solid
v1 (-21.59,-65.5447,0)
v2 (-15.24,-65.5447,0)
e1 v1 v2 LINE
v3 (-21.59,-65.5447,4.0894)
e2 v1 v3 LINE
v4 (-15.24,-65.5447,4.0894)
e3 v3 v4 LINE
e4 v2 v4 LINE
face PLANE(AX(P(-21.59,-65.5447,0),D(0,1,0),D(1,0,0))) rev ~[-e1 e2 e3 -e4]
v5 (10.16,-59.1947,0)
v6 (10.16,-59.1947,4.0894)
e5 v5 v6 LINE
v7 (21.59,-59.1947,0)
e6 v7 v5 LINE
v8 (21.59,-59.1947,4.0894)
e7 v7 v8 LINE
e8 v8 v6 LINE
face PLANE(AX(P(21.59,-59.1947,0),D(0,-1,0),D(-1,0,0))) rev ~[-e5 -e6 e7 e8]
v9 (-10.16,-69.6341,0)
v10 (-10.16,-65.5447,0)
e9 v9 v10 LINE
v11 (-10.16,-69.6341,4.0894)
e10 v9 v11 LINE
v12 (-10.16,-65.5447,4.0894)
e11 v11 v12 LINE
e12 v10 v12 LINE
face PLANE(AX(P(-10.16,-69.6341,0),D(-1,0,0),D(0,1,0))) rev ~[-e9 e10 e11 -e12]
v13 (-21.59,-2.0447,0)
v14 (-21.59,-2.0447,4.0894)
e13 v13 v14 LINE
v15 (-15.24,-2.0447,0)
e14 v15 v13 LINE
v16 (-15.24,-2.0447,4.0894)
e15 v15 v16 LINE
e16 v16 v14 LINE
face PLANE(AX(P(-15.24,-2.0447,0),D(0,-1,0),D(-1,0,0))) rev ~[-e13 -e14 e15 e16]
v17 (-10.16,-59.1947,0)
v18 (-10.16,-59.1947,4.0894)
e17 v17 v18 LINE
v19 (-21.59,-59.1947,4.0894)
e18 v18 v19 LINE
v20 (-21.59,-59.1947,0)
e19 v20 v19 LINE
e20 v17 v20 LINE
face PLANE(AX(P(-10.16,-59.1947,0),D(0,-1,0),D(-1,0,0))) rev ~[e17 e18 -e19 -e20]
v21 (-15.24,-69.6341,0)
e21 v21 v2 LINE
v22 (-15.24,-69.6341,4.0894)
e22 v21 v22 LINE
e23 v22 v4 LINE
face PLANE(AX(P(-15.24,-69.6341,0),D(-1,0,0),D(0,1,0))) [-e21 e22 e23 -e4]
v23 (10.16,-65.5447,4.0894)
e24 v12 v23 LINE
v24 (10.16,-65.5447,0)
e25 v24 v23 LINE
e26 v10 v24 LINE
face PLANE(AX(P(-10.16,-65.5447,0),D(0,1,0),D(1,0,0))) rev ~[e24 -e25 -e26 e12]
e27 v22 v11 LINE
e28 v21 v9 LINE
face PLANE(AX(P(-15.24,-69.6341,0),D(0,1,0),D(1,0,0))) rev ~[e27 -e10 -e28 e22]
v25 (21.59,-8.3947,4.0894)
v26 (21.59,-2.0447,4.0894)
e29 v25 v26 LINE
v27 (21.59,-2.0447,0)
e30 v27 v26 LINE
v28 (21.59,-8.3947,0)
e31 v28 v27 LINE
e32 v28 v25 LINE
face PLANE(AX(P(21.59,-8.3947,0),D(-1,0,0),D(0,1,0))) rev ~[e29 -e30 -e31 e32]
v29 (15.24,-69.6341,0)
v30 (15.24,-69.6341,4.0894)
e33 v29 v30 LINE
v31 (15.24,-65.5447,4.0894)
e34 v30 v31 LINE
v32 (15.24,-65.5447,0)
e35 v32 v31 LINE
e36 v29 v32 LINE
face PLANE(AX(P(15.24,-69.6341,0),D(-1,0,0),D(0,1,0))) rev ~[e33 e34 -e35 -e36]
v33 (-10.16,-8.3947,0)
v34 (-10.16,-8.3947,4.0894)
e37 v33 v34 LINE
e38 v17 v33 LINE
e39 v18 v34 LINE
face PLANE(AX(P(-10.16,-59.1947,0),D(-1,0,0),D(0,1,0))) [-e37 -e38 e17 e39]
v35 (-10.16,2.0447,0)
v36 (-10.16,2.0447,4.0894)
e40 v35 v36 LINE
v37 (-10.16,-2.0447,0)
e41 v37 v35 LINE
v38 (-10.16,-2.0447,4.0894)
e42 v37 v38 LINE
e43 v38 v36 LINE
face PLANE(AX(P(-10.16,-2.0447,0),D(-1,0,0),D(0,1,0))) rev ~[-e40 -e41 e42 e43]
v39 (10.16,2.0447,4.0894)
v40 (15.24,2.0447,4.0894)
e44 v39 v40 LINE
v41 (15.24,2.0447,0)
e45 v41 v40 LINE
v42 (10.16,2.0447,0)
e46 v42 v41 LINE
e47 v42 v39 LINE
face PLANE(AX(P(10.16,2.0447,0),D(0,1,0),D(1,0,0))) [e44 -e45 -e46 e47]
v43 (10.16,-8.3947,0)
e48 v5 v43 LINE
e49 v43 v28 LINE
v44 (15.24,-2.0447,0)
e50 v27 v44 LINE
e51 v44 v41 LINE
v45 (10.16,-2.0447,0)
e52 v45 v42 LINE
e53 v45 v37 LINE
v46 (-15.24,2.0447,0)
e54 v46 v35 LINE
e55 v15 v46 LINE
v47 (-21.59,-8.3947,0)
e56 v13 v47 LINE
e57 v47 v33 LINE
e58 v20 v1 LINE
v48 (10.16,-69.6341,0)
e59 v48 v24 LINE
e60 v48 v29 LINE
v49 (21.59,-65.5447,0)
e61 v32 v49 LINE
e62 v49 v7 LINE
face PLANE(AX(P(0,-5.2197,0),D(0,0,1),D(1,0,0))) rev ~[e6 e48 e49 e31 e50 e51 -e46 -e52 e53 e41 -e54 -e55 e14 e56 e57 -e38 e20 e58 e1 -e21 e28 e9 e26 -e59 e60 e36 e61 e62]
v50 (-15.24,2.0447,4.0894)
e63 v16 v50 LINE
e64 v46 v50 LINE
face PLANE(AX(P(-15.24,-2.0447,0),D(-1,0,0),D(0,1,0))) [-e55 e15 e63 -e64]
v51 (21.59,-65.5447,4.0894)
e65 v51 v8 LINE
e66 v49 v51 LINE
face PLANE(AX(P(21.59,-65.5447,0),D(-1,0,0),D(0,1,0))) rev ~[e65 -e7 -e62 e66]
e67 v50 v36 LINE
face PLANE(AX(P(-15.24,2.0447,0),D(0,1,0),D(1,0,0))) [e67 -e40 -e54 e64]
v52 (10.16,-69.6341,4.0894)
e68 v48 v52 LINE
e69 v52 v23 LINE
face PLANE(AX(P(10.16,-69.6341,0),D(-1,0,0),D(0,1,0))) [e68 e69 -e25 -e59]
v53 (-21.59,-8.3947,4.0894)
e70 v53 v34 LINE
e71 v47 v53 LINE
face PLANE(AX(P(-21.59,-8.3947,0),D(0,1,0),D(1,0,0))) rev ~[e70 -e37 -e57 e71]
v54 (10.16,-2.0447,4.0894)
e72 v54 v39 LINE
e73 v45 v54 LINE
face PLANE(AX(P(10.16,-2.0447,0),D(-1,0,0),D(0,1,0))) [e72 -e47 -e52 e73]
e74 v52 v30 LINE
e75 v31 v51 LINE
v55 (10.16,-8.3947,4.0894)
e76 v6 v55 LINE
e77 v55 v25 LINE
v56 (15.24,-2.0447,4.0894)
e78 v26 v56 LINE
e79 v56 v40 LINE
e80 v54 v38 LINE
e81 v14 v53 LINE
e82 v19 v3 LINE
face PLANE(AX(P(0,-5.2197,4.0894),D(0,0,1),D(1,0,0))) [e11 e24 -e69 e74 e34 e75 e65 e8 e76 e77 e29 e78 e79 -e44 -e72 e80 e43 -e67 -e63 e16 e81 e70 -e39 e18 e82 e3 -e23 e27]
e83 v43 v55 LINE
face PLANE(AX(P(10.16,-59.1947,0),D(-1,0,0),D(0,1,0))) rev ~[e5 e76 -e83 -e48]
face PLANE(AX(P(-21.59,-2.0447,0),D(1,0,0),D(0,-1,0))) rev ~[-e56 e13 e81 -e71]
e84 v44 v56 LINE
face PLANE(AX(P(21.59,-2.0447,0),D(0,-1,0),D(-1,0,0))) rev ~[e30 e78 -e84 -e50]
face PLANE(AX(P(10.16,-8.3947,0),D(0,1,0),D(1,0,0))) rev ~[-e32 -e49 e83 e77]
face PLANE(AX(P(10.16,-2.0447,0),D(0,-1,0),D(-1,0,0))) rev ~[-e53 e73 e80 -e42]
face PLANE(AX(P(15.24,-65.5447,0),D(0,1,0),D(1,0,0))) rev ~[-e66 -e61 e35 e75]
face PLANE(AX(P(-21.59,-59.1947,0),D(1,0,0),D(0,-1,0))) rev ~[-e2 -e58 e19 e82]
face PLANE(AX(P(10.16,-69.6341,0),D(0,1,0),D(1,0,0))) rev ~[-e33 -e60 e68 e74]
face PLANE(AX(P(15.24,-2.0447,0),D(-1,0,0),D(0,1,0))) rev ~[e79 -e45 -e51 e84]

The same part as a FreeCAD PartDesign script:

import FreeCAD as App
import Part
import Sketcher
Q = App.Units.Quantity

doc = App.newDocument("Part")
body = doc.addObject("PartDesign::Body", "Body")

sketch1 = doc.addObject("Sketcher::SketchObject", "Sketch")
body.addObject(sketch1)
sketch1.AttachmentSupport = (doc.XY_Plane, [""])
sketch1.MapMode = "FlatFace"
sketch1.addGeometry([
    Part.LineSegment(App.Vector(21.59, -2.0447, 0), App.Vector(15.24, -2.0447, 0)),
    Part.LineSegment(App.Vector(15.24, -2.0447, 0), App.Vector(15.24, 2.0447, 0)),
    Part.LineSegment(App.Vector(15.24, 2.0447, 0), App.Vector(10.16, 2.0447, 0)),
    Part.LineSegment(App.Vector(10.16, 2.0447, 0), App.Vector(10.16, -2.0447, 0)),
    Part.LineSegment(App.Vector(10.16, -2.0447, 0), App.Vector(-10.16, -2.0447, 0)),
    Part.LineSegment(App.Vector(-10.16, -2.0447, 0), App.Vector(-10.16, 2.0447, 0)),
    Part.LineSegment(App.Vector(-10.16, 2.0447, 0), App.Vector(-15.24, 2.0447, 0)),
    Part.LineSegment(App.Vector(-15.24, 2.0447, 0), App.Vector(-15.24, -2.0447, 0)),
    Part.LineSegment(App.Vector(-15.24, -2.0447, 0), App.Vector(-21.59, -2.0447, 0)),
    Part.LineSegment(App.Vector(-21.59, -2.0447, 0), App.Vector(-21.59, -8.3947, 0)),
    Part.LineSegment(App.Vector(-21.59, -8.3947, 0), App.Vector(-10.16, -8.3947, 0)),
    Part.LineSegment(App.Vector(-10.16, -8.3947, 0), App.Vector(-10.16, -59.1947, 0)),
    Part.LineSegment(App.Vector(-10.16, -59.1947, 0), App.Vector(-21.59, -59.1947, 0)),
    Part.LineSegment(App.Vector(-21.59, -59.1947, 0), App.Vector(-21.59, -65.5447, 0)),
    Part.LineSegment(App.Vector(-21.59, -65.5447, 0), App.Vector(-15.24, -65.5447, 0)),
    Part.LineSegment(App.Vector(-15.24, -65.5447, 0), App.Vector(-15.24, -69.6341, 0)),
    Part.LineSegment(App.Vector(-15.24, -69.6341, 0), App.Vector(-10.16, -69.6341, 0)),
    Part.LineSegment(App.Vector(-10.16, -69.6341, 0), App.Vector(-10.16, -65.5447, 0)),
    Part.LineSegment(App.Vector(-10.16, -65.5447, 0), App.Vector(10.16, -65.5447, 0)),
    Part.LineSegment(App.Vector(10.16, -65.5447, 0), App.Vector(10.16, -69.6341, 0)),
    Part.LineSegment(App.Vector(10.16, -69.6341, 0), App.Vector(15.24, -69.6341, 0)),
    Part.LineSegment(App.Vector(15.24, -69.6341, 0), App.Vector(15.24, -65.5447, 0)),
    Part.LineSegment(App.Vector(15.24, -65.5447, 0), App.Vector(21.59, -65.5447, 0)),
    Part.LineSegment(App.Vector(21.59, -65.5447, 0), App.Vector(21.59, -59.1947, 0)),
    Part.LineSegment(App.Vector(21.59, -59.1947, 0), App.Vector(10.16, -59.1947, 0)),
    Part.LineSegment(App.Vector(10.16, -59.1947, 0), App.Vector(10.16, -8.3947, 0)),
    Part.LineSegment(App.Vector(10.16, -8.3947, 0), App.Vector(21.59, -8.3947, 0)),
    Part.LineSegment(App.Vector(21.59, -8.3947, 0), App.Vector(21.59, -2.0447, 0)),
], False)
sketch1.addConstraint([
    Sketcher.Constraint("Coincident", 0, 2, 1, 1),
    Sketcher.Constraint("Coincident", 1, 2, 2, 1),
    Sketcher.Constraint("Coincident", 2, 2, 3, 1),
    Sketcher.Constraint("Coincident", 3, 2, 4, 1),
    Sketcher.Constraint("Coincident", 4, 2, 5, 1),
    Sketcher.Constraint("Coincident", 5, 2, 6, 1),
    Sketcher.Constraint("Coincident", 6, 2, 7, 1),
    Sketcher.Constraint("Coincident", 7, 2, 8, 1),
    Sketcher.Constraint("Coincident", 8, 2, 9, 1),
    Sketcher.Constraint("Coincident", 9, 2, 10, 1),
    Sketcher.Constraint("Coincident", 10, 2, 11, 1),
    Sketcher.Constraint("Coincident", 11, 2, 12, 1),
    Sketcher.Constraint("Coincident", 12, 2, 13, 1),
    Sketcher.Constraint("Coincident", 13, 2, 14, 1),
    Sketcher.Constraint("Coincident", 14, 2, 15, 1),
    Sketcher.Constraint("Coincident", 15, 2, 16, 1),
    Sketcher.Constraint("Coincident", 16, 2, 17, 1),
    Sketcher.Constraint("Coincident", 17, 2, 18, 1),
    Sketcher.Constraint("Coincident", 18, 2, 19, 1),
    Sketcher.Constraint("Coincident", 19, 2, 20, 1),
    Sketcher.Constraint("Coincident", 20, 2, 21, 1),
    Sketcher.Constraint("Coincident", 21, 2, 22, 1),
    Sketcher.Constraint("Coincident", 22, 2, 23, 1),
    Sketcher.Constraint("Coincident", 23, 2, 24, 1),
    Sketcher.Constraint("Coincident", 24, 2, 25, 1),
    Sketcher.Constraint("Coincident", 25, 2, 26, 1),
    Sketcher.Constraint("Coincident", 26, 2, 27, 1),
    Sketcher.Constraint("Coincident", 27, 2, 0, 1),
    Sketcher.Constraint("Horizontal", 0),
    Sketcher.Constraint("Vertical", 1),
    Sketcher.Constraint("Horizontal", 2),
    Sketcher.Constraint("Vertical", 3),
    Sketcher.Constraint("Horizontal", 4),
    Sketcher.Constraint("Vertical", 5),
    Sketcher.Constraint("Horizontal", 6),
    Sketcher.Constraint("Vertical", 7),
    Sketcher.Constraint("Horizontal", 8),
    Sketcher.Constraint("Vertical", 9),
    Sketcher.Constraint("Horizontal", 10),
    Sketcher.Constraint("Vertical", 11),
    Sketcher.Constraint("Horizontal", 12),
    Sketcher.Constraint("Vertical", 13),
    Sketcher.Constraint("Horizontal", 14),
    Sketcher.Constraint("Vertical", 15),
    Sketcher.Constraint("Horizontal", 16),
    Sketcher.Constraint("Vertical", 17),
    Sketcher.Constraint("Horizontal", 18),
    Sketcher.Constraint("Vertical", 19),
    Sketcher.Constraint("Horizontal", 20),
    Sketcher.Constraint("Vertical", 21),
    Sketcher.Constraint("Horizontal", 22),
    Sketcher.Constraint("Vertical", 23),
    Sketcher.Constraint("Horizontal", 24),
    Sketcher.Constraint("Vertical", 25),
    Sketcher.Constraint("Horizontal", 26),
    Sketcher.Constraint("Vertical", 27),
    Sketcher.Constraint("Symmetric", 2, 2, 4, 2, -1, 1),
    Sketcher.Constraint("Symmetric", 0, 2, 6, 2, -1, 1),
    Sketcher.Constraint("Symmetric", 16, 2, 19, 2, -2),
    Sketcher.Constraint("Symmetric", 14, 2, 21, 2, -2),
    Sketcher.Constraint("Symmetric", 12, 2, 23, 2, -2),
    Sketcher.Constraint("Symmetric", 10, 2, 25, 2, -2),
    Sketcher.Constraint("Symmetric", 8, 2, 27, 2, -2),
    Sketcher.Constraint("Horizontal", 0, 2, 3, 2),
    Sketcher.Constraint("Horizontal", 14, 2, 17, 2),
    Sketcher.Constraint("Vertical", 5, 2, 10, 2),
    Sketcher.Constraint("Vertical", 9, 2, 12, 2),
    Sketcher.Constraint("Vertical", 7, 2, 14, 2),
    Sketcher.Constraint("Vertical", 11, 2, 16, 2),
    Sketcher.Constraint("Equal", 22, 9),
    Sketcher.Constraint("Equal", 9, 13),
    Sketcher.Constraint("Equal", 7, 15),
    Sketcher.Constraint("DistanceY", 11, 2, 11, 1, Q("2 in")),
    Sketcher.Constraint("DistanceX", 2, 2, 2, 1, Q("0.2 in")),
    Sketcher.Constraint("DistanceX", 4, 2, 4, 1, Q("0.8 in")),
    Sketcher.Constraint("DistanceX", 0, 2, 0, 1, Q("0.25 in")),
    Sketcher.Constraint("DistanceY", 1, 1, 1, 2, Q("0.161 in")),
])
pad1 = doc.addObject("PartDesign::Pad", "Pad")
body.addObject(pad1)
pad1.Profile = sketch1
pad1.Length = Q("0.161 in")

doc.recompute()
